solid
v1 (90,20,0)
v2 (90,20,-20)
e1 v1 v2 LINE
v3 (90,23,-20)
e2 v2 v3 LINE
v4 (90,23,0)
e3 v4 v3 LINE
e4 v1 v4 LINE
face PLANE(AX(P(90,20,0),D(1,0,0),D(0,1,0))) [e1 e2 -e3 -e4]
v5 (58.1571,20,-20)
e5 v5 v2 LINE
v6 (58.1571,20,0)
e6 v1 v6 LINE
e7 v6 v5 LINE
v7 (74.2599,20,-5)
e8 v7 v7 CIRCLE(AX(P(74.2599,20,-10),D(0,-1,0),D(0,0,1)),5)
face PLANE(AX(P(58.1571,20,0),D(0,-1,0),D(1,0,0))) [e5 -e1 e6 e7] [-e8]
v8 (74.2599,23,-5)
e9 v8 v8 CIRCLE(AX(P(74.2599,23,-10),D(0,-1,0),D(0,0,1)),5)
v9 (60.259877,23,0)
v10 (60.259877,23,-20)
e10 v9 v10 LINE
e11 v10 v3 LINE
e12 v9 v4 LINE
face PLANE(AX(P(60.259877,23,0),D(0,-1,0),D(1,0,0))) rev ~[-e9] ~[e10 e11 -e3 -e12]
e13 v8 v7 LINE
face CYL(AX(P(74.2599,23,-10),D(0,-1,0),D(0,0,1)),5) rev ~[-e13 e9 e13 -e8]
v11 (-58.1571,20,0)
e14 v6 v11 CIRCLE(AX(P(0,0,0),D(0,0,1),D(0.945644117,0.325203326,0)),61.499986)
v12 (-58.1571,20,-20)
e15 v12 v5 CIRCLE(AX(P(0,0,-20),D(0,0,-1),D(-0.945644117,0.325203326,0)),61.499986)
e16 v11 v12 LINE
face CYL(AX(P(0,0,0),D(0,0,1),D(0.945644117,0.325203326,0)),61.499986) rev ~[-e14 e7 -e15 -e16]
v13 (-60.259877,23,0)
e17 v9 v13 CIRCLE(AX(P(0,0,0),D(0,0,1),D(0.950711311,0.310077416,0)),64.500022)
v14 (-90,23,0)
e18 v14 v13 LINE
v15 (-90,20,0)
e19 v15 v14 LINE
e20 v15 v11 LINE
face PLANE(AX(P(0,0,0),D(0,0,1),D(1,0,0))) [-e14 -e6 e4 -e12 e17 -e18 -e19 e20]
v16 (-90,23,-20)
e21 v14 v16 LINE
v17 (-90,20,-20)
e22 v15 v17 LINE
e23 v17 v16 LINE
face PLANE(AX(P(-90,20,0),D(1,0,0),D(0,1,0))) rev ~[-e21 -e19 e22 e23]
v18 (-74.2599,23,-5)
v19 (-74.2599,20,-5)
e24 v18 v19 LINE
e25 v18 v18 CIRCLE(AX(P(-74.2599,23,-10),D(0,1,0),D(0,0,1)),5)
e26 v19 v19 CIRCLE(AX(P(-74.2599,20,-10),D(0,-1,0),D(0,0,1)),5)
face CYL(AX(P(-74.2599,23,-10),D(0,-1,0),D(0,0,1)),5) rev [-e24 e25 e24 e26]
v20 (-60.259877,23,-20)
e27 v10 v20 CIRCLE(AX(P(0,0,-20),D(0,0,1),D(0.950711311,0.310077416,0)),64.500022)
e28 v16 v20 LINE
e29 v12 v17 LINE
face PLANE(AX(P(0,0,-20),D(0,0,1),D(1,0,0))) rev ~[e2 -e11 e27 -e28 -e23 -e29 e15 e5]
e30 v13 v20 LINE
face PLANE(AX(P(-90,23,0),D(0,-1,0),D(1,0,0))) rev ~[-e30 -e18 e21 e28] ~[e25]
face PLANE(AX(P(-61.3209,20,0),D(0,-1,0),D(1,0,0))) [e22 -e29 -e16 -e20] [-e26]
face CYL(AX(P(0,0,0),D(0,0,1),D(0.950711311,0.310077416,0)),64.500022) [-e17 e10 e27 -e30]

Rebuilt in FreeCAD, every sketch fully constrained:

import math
import FreeCAD as App
import Part
import Sketcher
from FreeCAD import Vector

doc = App.newDocument("Part")
body = doc.addObject("PartDesign::Body", "Body")

# Sketch on XY plane
sketch1 = body.newObject("Sketcher::SketchObject", "Sketch")
sketch1.AttachmentSupport = (doc.getObject("XY_Plane"), [""])
sketch1.MapMode = "FlatFace"
sketch1.addGeometry([
    Part.LineSegment(Vector(58.2, 20, 0), Vector(90, 20, 0)),  # 0
    Part.LineSegment(Vector(90, 20, 0), Vector(90, 23, 0)),  # 1
    Part.LineSegment(Vector(90, 23, 0), Vector(60.3, 23, 0)),  # 2
    Part.ArcOfCircle(Part.Circle(Vector(0, 0, 0), Vector(0, 0, 1), 64.5), math.radians(21), math.radians(159)),  # 3
    Part.LineSegment(Vector(-60.3, 23, 0), Vector(-90, 23, 0)),  # 4
    Part.LineSegment(Vector(-90, 23, 0), Vector(-90, 20, 0)),  # 5
    Part.LineSegment(Vector(-90, 20, 0), Vector(-58.2, 20, 0)),  # 6
    Part.ArcOfCircle(Part.Circle(Vector(0, 0, 0), Vector(0, 0, 1), 61.5), math.radians(19), math.radians(161)),  # 7
], False)
sketch1.addConstraint([
    Sketcher.Constraint("Coincident", 0, 2, 1, 1),
    Sketcher.Constraint("Coincident", 1, 2, 2, 1),
    Sketcher.Constraint("Coincident", 2, 2, 3, 1),
    Sketcher.Constraint("Coincident", 3, 2, 4, 1),
    Sketcher.Constraint("Coincident", 4, 2, 5, 1),
    Sketcher.Constraint("Coincident", 5, 2, 6, 1),
    Sketcher.Constraint("Coincident", 6, 2, 7, 2),
    Sketcher.Constraint("Coincident", 7, 1, 0, 1),
    Sketcher.Constraint("Horizontal", 0),
    Sketcher.Constraint("Vertical", 1),
    Sketcher.Constraint("Horizontal", 2),
    Sketcher.Constraint("Horizontal", 4),
    Sketcher.Constraint("Vertical", 5),
    Sketcher.Constraint("Horizontal", 6),
    Sketcher.Constraint("Coincident", 3, 3, -1, 1),
    Sketcher.Constraint("Coincident", 7, 3, -1, 1),
    Sketcher.Constraint("Symmetric", 1, 2, 4, 2, -2),
    Sketcher.Constraint("Horizontal", 0, 2, 5, 2),
    Sketcher.Constraint("Radius", 3, 64.5),
    Sketcher.Constraint("Radius", 7, 61.5),
    Sketcher.Constraint("DistanceY", 1, 1, 1, 2, 3.0),
    Sketcher.Constraint("DistanceX", -1, 1, 0, 2, 90.0),
    Sketcher.Constraint("DistanceY", -1, 1, 0, 2, 20.0),
])
pad1 = body.newObject("PartDesign::Pad", "Pad")
pad1.Profile = sketch1
pad1.Length = 20
pad1.Reversed = True

# Sketch on XZ plane
sketch2 = body.newObject("Sketcher::SketchObject", "Sketch001")
sketch2.AttachmentSupport = (doc.getObject("XZ_Plane"), [""])
sketch2.MapMode = "FlatFace"
sketch2.AttachmentOffset = App.Placement(Vector(0, 0, -23), App.Rotation())
sketch2.addGeometry(Part.Circle(Vector(74, -10, 0), Vector(0, 0, 1), 5), False)
sketch2.addConstraint([
    Sketcher.Constraint("Diameter", 0, 10.0),
    Sketcher.Constraint("DistanceY", 0, 3, -1, 1, 10.0),
    Sketcher.Constraint("DistanceX", -1, 1, 0, 3, 74.26),
])
doc.recompute()
hole = body.newObject("PartDesign::Hole", "Hole")
hole.Profile = sketch2
hole.ThreadType = "None"
hole.Diameter = 10
hole.DepthType = "ThroughAll"
hole.Reversed = True
doc.recompute()

mirrored = body.newObject("PartDesign::Mirrored", "Mirrored")
mirrored.Originals = [hole]
mirrored.MirrorPlane = (doc.getObject("YZ_Plane"), [""])
body.Tip = mirrored

doc.recompute()
